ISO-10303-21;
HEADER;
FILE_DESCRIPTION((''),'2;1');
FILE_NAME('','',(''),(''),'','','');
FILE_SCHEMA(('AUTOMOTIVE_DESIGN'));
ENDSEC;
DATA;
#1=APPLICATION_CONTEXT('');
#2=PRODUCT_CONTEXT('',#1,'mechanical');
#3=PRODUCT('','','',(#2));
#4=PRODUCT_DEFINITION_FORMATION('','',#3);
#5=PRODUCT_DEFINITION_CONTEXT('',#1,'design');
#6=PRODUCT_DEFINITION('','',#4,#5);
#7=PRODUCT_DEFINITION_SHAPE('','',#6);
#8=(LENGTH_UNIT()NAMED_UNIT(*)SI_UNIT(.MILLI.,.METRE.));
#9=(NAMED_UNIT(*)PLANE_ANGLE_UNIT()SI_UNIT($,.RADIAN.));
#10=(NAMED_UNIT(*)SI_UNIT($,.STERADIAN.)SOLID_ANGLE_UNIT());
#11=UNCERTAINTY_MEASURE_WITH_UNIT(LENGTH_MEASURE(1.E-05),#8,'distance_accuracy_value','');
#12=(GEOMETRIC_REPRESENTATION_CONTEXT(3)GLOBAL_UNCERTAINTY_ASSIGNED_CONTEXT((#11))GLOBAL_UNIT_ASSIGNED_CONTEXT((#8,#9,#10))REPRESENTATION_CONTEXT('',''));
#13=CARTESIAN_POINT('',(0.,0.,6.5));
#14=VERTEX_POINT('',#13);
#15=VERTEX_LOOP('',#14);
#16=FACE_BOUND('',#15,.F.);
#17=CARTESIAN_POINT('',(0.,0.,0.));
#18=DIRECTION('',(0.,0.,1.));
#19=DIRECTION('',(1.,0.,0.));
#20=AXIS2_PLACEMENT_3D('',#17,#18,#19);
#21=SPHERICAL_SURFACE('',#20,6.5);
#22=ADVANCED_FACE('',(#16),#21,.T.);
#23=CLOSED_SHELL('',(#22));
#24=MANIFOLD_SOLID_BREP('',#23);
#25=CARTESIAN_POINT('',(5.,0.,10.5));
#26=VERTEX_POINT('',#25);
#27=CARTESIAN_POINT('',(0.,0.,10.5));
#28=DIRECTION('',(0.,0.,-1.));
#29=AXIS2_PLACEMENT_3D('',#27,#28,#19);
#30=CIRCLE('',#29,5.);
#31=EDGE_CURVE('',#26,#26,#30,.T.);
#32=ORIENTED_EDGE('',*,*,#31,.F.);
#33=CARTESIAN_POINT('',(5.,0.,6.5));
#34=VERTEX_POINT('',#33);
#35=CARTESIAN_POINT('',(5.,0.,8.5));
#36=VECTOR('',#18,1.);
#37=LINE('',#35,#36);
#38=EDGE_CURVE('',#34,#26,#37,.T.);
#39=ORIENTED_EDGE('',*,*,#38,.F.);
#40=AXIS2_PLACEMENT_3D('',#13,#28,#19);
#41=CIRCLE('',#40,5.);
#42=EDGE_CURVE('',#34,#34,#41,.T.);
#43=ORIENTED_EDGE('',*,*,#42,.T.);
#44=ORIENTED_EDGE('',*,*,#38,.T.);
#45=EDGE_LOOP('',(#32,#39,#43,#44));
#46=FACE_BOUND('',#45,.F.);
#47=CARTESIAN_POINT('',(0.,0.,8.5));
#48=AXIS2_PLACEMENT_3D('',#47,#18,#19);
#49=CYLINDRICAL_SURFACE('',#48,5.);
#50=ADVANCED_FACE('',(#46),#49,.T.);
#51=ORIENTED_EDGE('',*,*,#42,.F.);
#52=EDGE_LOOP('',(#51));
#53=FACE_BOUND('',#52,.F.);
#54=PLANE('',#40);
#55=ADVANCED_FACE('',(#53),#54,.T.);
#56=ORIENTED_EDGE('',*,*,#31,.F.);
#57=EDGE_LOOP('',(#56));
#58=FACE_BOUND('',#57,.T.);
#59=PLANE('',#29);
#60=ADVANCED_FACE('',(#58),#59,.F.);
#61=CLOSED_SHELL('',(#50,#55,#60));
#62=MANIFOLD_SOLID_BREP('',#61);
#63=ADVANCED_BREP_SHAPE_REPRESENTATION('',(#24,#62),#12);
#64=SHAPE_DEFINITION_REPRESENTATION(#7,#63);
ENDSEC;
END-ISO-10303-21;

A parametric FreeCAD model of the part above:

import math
import FreeCAD as App
import Part
import Sketcher
Q = App.Units.Quantity

doc = App.newDocument("Part")
body = doc.addObject("PartDesign::Body", "Body")
body.AllowCompound = True

# Sketch on XZ plane
sketch1 = body.newObject("Sketcher::SketchObject", "Sketch")
sketch1.AttachmentSupport = (doc.getObject("XZ_Plane"), [""])
sketch1.MapMode = "FlatFace"
sketch1.addGeometry([
    Part.LineSegment(App.Vector(0, 6.5, 0), App.Vector(0, -6.5, 0)),  # 0
    Part.ArcOfCircle(Part.Circle(App.Vector(0, 0, 0), App.Vector(0, 0, 1), 6.5), math.radians(-90), math.radians(90)),  # 1
    Part.LineSegment(App.Vector(0, 10.5, 0), App.Vector(0, 6.5, 0)),  # 2
    Part.LineSegment(App.Vector(0, 6.5, 0), App.Vector(5, 6.5, 0)),  # 3
    Part.LineSegment(App.Vector(5, 6.5, 0), App.Vector(5, 10.5, 0)),  # 4
    Part.LineSegment(App.Vector(5, 10.5, 0), App.Vector(0, 10.5, 0)),  # 5
], False)
sketch1.addConstraint([
    Sketcher.Constraint("Coincident", 0, 1, 1, 2),
    Sketcher.Constraint("Coincident", 1, 1, 0, 2),
    Sketcher.Constraint("Coincident", 2, 2, 3, 1),
    Sketcher.Constraint("Coincident", 3, 2, 4, 1),
    Sketcher.Constraint("Coincident", 4, 2, 5, 1),
    Sketcher.Constraint("Coincident", 5, 2, 2, 1),
    Sketcher.Constraint("Vertical", 0),
    Sketcher.Constraint("Vertical", 2),
    Sketcher.Constraint("Horizontal", 3),
    Sketcher.Constraint("Vertical", 4),
    Sketcher.Constraint("Horizontal", 5),
    Sketcher.Constraint("Coincident", 1, 3, -1, 1),
    Sketcher.Constraint("Coincident", 2, 2, 0, 1),
    Sketcher.Constraint("PointOnObject", 0, 1, -2),
    Sketcher.Constraint("Radius", 1, Q("6.5 mm")),
    Sketcher.Constraint("DistanceX", 3, 1, 3, 2, Q("5 mm")),
    Sketcher.Constraint("DistanceY", 2, 2, 2, 1, Q("4 mm")),
])
revolution = body.newObject("PartDesign::Revolution", "Revolution")
revolution.Profile = sketch1
revolution.ReferenceAxis = (sketch1, ["V_Axis"])
revolution.Angle = 360

doc.recompute()
